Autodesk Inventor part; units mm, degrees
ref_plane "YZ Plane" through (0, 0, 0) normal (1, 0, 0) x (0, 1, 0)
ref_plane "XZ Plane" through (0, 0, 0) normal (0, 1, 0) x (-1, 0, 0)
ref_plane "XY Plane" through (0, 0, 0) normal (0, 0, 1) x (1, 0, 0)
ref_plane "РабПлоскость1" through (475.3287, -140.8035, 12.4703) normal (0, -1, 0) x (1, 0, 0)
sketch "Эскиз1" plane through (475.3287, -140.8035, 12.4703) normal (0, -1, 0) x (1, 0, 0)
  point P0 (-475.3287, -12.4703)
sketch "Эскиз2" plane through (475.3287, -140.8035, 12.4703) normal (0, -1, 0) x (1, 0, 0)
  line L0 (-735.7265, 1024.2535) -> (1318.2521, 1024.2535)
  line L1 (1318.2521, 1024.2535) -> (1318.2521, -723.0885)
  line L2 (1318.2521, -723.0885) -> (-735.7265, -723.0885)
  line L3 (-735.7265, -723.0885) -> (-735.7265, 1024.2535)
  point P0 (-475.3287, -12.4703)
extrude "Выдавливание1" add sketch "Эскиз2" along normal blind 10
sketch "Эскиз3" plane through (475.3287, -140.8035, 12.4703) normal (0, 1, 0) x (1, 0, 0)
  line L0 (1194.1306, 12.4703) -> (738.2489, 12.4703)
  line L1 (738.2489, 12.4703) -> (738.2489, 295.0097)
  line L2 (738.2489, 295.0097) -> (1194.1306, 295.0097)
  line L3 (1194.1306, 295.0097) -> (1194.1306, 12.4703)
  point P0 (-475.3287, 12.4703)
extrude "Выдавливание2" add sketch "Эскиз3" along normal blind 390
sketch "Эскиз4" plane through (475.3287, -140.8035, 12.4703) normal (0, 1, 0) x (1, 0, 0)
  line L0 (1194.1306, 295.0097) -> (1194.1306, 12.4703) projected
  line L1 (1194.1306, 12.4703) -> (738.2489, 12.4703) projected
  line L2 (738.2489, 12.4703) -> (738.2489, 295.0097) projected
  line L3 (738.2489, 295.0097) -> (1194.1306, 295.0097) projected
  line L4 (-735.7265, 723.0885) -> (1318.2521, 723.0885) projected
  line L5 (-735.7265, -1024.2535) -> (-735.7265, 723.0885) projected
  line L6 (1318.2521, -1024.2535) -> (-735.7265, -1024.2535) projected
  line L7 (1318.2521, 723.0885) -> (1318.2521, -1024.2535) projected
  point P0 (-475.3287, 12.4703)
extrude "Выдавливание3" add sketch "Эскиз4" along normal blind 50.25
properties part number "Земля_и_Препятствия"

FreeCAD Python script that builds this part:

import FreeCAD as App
import Part
import Sketcher

doc = App.newDocument("Part")
body = doc.addObject("PartDesign::Body", "Body")

# Sketch on XZ plane
sketch1 = body.newObject("Sketcher::SketchObject", "Sketch")
sketch1.AttachmentSupport = (doc.getObject("XZ_Plane"), [""])
sketch1.MapMode = "FlatFace"
sketch1.AttachmentOffset = App.Placement(App.Vector(0, 0, 140.8035), App.Rotation())
sketch1.addGeometry([
    Part.LineSegment(App.Vector(1794, 1037, 0), App.Vector(-260, 1037, 0)),
    Part.LineSegment(App.Vector(-260, 1037, 0), App.Vector(-260, -711, 0)),
    Part.LineSegment(App.Vector(-260, -711, 0), App.Vector(1794, -711, 0)),
    Part.LineSegment(App.Vector(1794, -711, 0), App.Vector(1794, 1037, 0)),
], False)
sketch1.addConstraint([
    Sketcher.Constraint("Coincident", 0, 2, 1, 1),
    Sketcher.Constraint("Coincident", 1, 2, 2, 1),
    Sketcher.Constraint("Coincident", 2, 2, 3, 1),
    Sketcher.Constraint("Coincident", 3, 2, 0, 1),
    Sketcher.Constraint("Horizontal", 0),
    Sketcher.Constraint("Vertical", 1),
    Sketcher.Constraint("Horizontal", 2),
    Sketcher.Constraint("Vertical", 3),
    Sketcher.Constraint("DistanceY", 1, 2, 1, 1, 1747.342),
    Sketcher.Constraint("DistanceX", 0, 2, 0, 1, 2053.9786),
    Sketcher.Constraint("DistanceX", 0, 2, -1, 1, 260.3978),
    Sketcher.Constraint("DistanceY", -1, 1, 0, 2, 1036.7238),
])
pad1 = body.newObject("PartDesign::Pad", "Pad")
pad1.Profile = sketch1
pad1.Length = 10

# Sketch on XZ plane
sketch2 = body.newObject("Sketcher::SketchObject", "Sketch001")
sketch2.AttachmentSupport = (doc.getObject("XZ_Plane"), [""])
sketch2.MapMode = "FlatFace"
sketch2.AttachmentOffset = App.Placement(App.Vector(0, 0, 140.8035), App.Rotation())
sketch2.addGeometry([
    Part.LineSegment(App.Vector(1214, 0, 0), App.Vector(1669, 0, 0)),
    Part.LineSegment(App.Vector(1669, 0, 0), App.Vector(1669, -283, 0)),
    Part.LineSegment(App.Vector(1669, -283, 0), App.Vector(1214, -283, 0)),
    Part.LineSegment(App.Vector(1214, -283, 0), App.Vector(1214, 0, 0)),
], False)
sketch2.addConstraint([
    Sketcher.Constraint("Coincident", 0, 2, 1, 1),
    Sketcher.Constraint("Coincident", 1, 2, 2, 1),
    Sketcher.Constraint("Coincident", 2, 2, 3, 1),
    Sketcher.Constraint("Coincident", 3, 2, 0, 1),
    Sketcher.Constraint("Horizontal", 0),
    Sketcher.Constraint("Vertical", 1),
    Sketcher.Constraint("Horizontal", 2),
    Sketcher.Constraint("Vertical", 3),
    Sketcher.Constraint("PointOnObject", 0, 2, -1),
    Sketcher.Constraint("DistanceX", 0, 1, 0, 2, 455.8817),
    Sketcher.Constraint("DistanceY", 1, 2, 1, 1, 282.5394),
    Sketcher.Constraint("DistanceX", -1, 1, 0, 2, 1669.4593),
])
pad2 = body.newObject("PartDesign::Pad", "Pad001")
pad2.Profile = sketch2
pad2.Length = 390
pad2.Reversed = True

# Sketch on XZ plane
sketch3 = body.newObject("Sketcher::SketchObject", "Sketch002")
sketch3.AttachmentSupport = (doc.getObject("XZ_Plane"), [""])
sketch3.MapMode = "FlatFace"
sketch3.AttachmentOffset = App.Placement(App.Vector(0, 0, 140.8035), App.Rotation())
sketch3.addGeometry([
    Part.LineSegment(App.Vector(1794, -711, 0), App.Vector(-260, -711, 0)),  # 0
    Part.LineSegment(App.Vector(-260, -711, 0), App.Vector(-260, 1037, 0)),  # 1
    Part.LineSegment(App.Vector(-260, 1037, 0), App.Vector(1794, 1037, 0)),  # 2
    Part.LineSegment(App.Vector(1794, 1037, 0), App.Vector(1794, -711, 0)),  # 3
    Part.LineSegment(App.Vector(1214, -283, 0), App.Vector(1669, -283, 0)),  # 4
    Part.LineSegment(App.Vector(1669, -283, 0), App.Vector(1669, 0, 0)),  # 5
    Part.LineSegment(App.Vector(1669, 0, 0), App.Vector(1214, 0, 0)),  # 6
    Part.LineSegment(App.Vector(1214, 0, 0), App.Vector(1214, -283, 0)),  # 7
], False)
sketch3.addConstraint([
    Sketcher.Constraint("Coincident", 0, 2, 1, 1),
    Sketcher.Constraint("Coincident", 1, 2, 2, 1),
    Sketcher.Constraint("Coincident", 2, 2, 3, 1),
    Sketcher.Constraint("Coincident", 3, 2, 0, 1),
    Sketcher.Constraint("Coincident", 4, 2, 5, 1),
    Sketcher.Constraint("Coincident", 5, 2, 6, 1),
    Sketcher.Constraint("Coincident", 6, 2, 7, 1),
    Sketcher.Constraint("Coincident", 7, 2, 4, 1),
    Sketcher.Constraint("Horizontal", 0),
    Sketcher.Constraint("Vertical", 1),
    Sketcher.Constraint("Horizontal", 2),
    Sketcher.Constraint("Vertical", 3),
    Sketcher.Constraint("Horizontal", 4),
    Sketcher.Constraint("Vertical", 5),
    Sketcher.Constraint("Horizontal", 6),
    Sketcher.Constraint("Vertical", 7),
    Sketcher.Constraint("PointOnObject", 5, 2, -1),
    Sketcher.Constraint("DistanceY", 1, 1, 1, 2, 1747.342),
    Sketcher.Constraint("DistanceX", 0, 2, 0, 1, 2053.9786),
    Sketcher.Constraint("DistanceX", 4, 1, 4, 2, 455.8817),
    Sketcher.Constraint("DistanceY", 5, 1, 5, 2, 282.5394),
    Sketcher.Constraint("DistanceX", 0, 2, 4, 2, 1929.857),
    Sketcher.Constraint("DistanceX", 0, 2, -1, 1, 260.3978),
    Sketcher.Constraint("DistanceY", 0, 2, -1, 1, 710.6182),
])
pad3 = body.newObject("PartDesign::Pad", "Pad002")
pad3.Profile = sketch3
pad3.Length = 50.25
pad3.Reversed = True

doc.recompute()
